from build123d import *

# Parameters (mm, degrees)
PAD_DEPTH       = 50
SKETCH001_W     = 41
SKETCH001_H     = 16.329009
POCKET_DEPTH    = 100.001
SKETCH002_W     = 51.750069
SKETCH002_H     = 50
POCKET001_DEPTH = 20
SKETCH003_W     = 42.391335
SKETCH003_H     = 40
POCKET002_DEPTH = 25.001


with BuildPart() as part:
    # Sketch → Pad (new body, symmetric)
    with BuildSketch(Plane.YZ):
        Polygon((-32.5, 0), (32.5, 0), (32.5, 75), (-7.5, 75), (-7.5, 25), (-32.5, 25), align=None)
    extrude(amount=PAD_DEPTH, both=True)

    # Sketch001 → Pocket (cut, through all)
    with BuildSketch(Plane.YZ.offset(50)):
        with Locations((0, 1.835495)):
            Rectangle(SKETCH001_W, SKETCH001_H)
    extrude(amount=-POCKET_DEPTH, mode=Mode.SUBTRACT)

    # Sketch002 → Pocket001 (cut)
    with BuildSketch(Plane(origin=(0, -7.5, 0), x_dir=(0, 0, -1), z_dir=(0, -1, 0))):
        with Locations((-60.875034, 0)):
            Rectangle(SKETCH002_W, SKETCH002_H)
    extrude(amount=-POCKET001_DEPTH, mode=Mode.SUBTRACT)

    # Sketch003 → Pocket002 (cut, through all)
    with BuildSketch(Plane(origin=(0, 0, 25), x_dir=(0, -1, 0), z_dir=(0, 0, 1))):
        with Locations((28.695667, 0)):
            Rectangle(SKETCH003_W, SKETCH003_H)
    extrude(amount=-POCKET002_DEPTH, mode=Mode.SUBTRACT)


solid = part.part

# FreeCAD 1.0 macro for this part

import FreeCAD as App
import Part
import Sketcher

V = App.Vector
Q = App.Units.Quantity


def add_polygon(sketch, points):
    """Adds a closed chain of lines whose ends are joined by coincident constraints."""
    first, n = sketch.GeometryCount, len(points)
    for a, b in zip(points, points[1:] + points[:1]):
        sketch.addGeometry(Part.LineSegment(App.Vector(*a, 0), App.Vector(*b, 0)), False)
    for i in range(n):
        sketch.addConstraint(Sketcher.Constraint("Coincident", first + i, 2, first + (i + 1) % n, 1))

doc = App.newDocument("Part")
body = doc.addObject("PartDesign::Body", "Body")

sketch1 = body.newObject("Sketcher::SketchObject", "Sketch")
sketch1.AttachmentSupport = (doc.getObject("YZ_Plane"), [""])
sketch1.MapMode = "FlatFace"
add_polygon(sketch1, [(-32, 0), (32, 0), (32, 75), (-8, 75), (-8, 25), (-32, 25)])
sketch1.addConstraint([
    Sketcher.Constraint("Horizontal", 0),
    Sketcher.Constraint("Vertical", 1),
    Sketcher.Constraint("Horizontal", 2),
    Sketcher.Constraint("Vertical", 3),
    Sketcher.Constraint("Horizontal", 4),
    Sketcher.Constraint("Vertical", 5),
    Sketcher.Constraint("Symmetric", 0, 2, 5, 2, -1, 1),
    Sketcher.Constraint("Equal", 4, 5),
    Sketcher.Constraint("DistanceX", 0, 1, 0, 2, Q("65 mm")),
    Sketcher.Constraint("DistanceX", 2, 2, 2, 1, Q("40 mm")),
    Sketcher.Constraint("DistanceY", 1, 1, 1, 2, Q("75 mm")),
])
pad1 = body.newObject("PartDesign::Pad", "Pad")
pad1.Profile = sketch1
pad1.Length = 100
pad1.Midplane = True

sketch2 = body.newObject("Sketcher::SketchObject", "Sketch001")
sketch2.AttachmentSupport = (doc.getObject("YZ_Plane"), [""])
sketch2.MapMode = "FlatFace"
sketch2.AttachmentOffset = App.Placement(V(0, 0, 50), App.Rotation())
add_polygon(sketch2, [(-20, 10), (-20, -6), (20, -6), (20, 10)])
sketch2.addConstraint([
    Sketcher.Constraint("Vertical", 0),
    Sketcher.Constraint("Horizontal", 1),
    Sketcher.Constraint("Vertical", 2),
    Sketcher.Constraint("Horizontal", 3),
    Sketcher.Constraint("DistanceX", 1, 1, 1, 2, Q("41 mm")),
    Sketcher.Constraint("DistanceY", -1, 1, 2, 2, Q("9.999999 mm")),
    Sketcher.Constraint("DistanceX", 0, 2, -1, 1, Q("20.5 mm")),
    Sketcher.Constraint("DistanceY", 0, 2, 0, 1, Q("16.329009 mm")),
])
pocket1 = body.newObject("PartDesign::Pocket", "Pocket")
pocket1.Profile = sketch2
pocket1.Type = "ThroughAll"

sketch3 = body.newObject("Sketcher::SketchObject", "Sketch002")
sketch3.AttachmentSupport = (doc.getObject("XZ_Plane"), [""])
sketch3.MapMode = "FlatFace"
sketch3.AttachmentOffset = App.Placement(V(0, 0, 7.5), App.Rotation())
add_polygon(sketch3, [(25, 87), (-25, 87), (-25, 35), (25, 35)])
sketch3.addConstraint([
    Sketcher.Constraint("Horizontal", 0),
    Sketcher.Constraint("Vertical", 1),
    Sketcher.Constraint("Horizontal", 2),
    Sketcher.Constraint("Vertical", 3),
    Sketcher.Constraint("DistanceX", 0, 2, 0, 1, Q("50 mm")),
    Sketcher.Constraint("DistanceX", 0, 2, -1, 1, Q("25 mm")),
    Sketcher.Constraint("DistanceY", -1, 1, 1, 2, Q("35 mm")),
    Sketcher.Constraint("DistanceY", 1, 2, 1, 1, Q("51.750069 mm")),
])
pocket2 = body.newObject("PartDesign::Pocket", "Pocket001")
pocket2.Profile = sketch3
pocket2.Length = 20

sketch4 = body.newObject("Sketcher::SketchObject", "Sketch003")
sketch4.AttachmentSupport = (doc.getObject("XY_Plane"), [""])
sketch4.MapMode = "FlatFace"
sketch4.AttachmentOffset = App.Placement(V(0, 0, 25), App.Rotation())
add_polygon(sketch4, [(20, -7), (-20, -7), (-20, -50), (20, -50)])
sketch4.addConstraint([
    Sketcher.Constraint("Horizontal", 0),
    Sketcher.Constraint("Vertical", 1),
    Sketcher.Constraint("Horizontal", 2),
    Sketcher.Constraint("Vertical", 3),
    Sketcher.Constraint("DistanceX", 0, 2, 0, 1, Q("40 mm")),
    Sketcher.Constraint("DistanceX", 0, 2, -1, 1, Q("20 mm")),
    Sketcher.Constraint("DistanceY", 0, 2, -1, 1, Q("7.5 mm")),
    Sketcher.Constraint("DistanceY", 1, 2, 1, 1, Q("42.391335 mm")),
])
pocket3 = body.newObject("PartDesign::Pocket", "Pocket002")
pocket3.Profile = sketch4
pocket3.Type = "ThroughAll"

doc.recompute()
